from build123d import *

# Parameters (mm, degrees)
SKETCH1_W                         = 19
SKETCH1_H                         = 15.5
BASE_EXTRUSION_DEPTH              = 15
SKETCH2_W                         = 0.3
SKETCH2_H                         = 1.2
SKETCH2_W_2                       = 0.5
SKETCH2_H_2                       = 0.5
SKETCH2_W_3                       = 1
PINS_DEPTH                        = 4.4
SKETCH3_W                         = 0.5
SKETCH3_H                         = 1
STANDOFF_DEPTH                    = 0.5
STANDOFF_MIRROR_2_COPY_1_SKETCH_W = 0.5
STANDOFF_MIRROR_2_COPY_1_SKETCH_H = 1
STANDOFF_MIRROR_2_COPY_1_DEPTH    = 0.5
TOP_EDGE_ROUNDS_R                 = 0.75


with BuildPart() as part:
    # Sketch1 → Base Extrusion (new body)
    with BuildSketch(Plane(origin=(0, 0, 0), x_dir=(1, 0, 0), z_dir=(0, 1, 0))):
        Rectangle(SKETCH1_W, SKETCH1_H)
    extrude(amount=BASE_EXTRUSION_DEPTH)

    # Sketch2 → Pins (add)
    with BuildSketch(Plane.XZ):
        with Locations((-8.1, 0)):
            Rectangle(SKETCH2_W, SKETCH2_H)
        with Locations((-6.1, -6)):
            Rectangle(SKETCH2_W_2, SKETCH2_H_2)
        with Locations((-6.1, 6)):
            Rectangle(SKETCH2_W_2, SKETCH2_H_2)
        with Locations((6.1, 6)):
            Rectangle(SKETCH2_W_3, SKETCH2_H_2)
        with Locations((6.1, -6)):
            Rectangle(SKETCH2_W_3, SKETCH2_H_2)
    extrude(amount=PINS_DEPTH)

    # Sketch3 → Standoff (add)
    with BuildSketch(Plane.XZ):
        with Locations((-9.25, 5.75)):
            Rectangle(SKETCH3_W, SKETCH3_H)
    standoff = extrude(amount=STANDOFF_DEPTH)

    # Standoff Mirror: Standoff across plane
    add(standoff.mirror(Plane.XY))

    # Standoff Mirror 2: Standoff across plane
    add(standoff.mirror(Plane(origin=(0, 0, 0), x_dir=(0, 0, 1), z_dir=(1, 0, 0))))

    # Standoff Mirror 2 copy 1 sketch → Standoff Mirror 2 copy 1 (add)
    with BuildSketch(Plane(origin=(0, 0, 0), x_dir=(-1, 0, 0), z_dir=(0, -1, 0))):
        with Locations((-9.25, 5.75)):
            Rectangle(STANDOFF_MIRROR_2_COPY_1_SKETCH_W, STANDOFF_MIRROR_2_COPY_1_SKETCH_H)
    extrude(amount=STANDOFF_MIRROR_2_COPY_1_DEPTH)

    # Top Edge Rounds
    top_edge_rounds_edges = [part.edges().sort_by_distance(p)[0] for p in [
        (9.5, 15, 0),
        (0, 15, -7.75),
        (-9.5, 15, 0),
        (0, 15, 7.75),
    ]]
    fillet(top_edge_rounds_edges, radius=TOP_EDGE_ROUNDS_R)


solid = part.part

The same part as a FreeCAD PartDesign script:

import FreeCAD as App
import Part
import Sketcher
from FreeCAD import Vector


def edges_at(feature, points):
    """Names of the edges that pass closest to the given points."""
    edges = feature.Shape.Edges
    near = lambda p: min(range(len(edges)), key=lambda i: edges[i].distToShape(Part.Vertex(*p))[0])
    return sorted({f"Edge{near(p) + 1}" for p in points})


def add_polygon(sketch, points):
    """Adds a closed chain of lines whose ends are joined by coincident constraints."""
    first, n = sketch.GeometryCount, len(points)
    for a, b in zip(points, points[1:] + points[:1]):
        sketch.addGeometry(Part.LineSegment(App.Vector(*a, 0), App.Vector(*b, 0)), False)
    for i in range(n):
        sketch.addConstraint(Sketcher.Constraint("Coincident", first + i, 2, first + (i + 1) % n, 1))

doc = App.newDocument("Part")
body = doc.addObject("PartDesign::Body", "Body")

sketch1 = body.newObject("Sketcher::SketchObject", "Sketch")
sketch1.AttachmentSupport = (doc.getObject("XZ_Plane"), [""])
sketch1.MapMode = "FlatFace"
add_polygon(sketch1, [(-9.5, -7.75), (-9.5, 7.75), (9.5, 7.75), (9.5, -7.75)])
sketch1.addConstraint(Sketcher.Constraint("Vertical", 0))
sketch1.addConstraint(Sketcher.Constraint("Horizontal", 1))
sketch1.addConstraint(Sketcher.Constraint("Vertical", 2))
sketch1.addConstraint(Sketcher.Constraint("Horizontal", 3))
sketch1.addConstraint(Sketcher.Constraint("Symmetric", 0, 2, 2, 2, -1, 1))
sketch1.addConstraint(Sketcher.Constraint("DistanceX", 1, 1, 1, 2, 19.0))
sketch1.addConstraint(Sketcher.Constraint("DistanceY", 0, 1, 0, 2, 15.5))
pad1 = body.newObject("PartDesign::Pad", "Pad")
pad1.Profile = sketch1
pad1.Length = 15
pad1.Reversed = True

sketch2 = body.newObject("Sketcher::SketchObject", "Sketch001")
sketch2.AttachmentSupport = (doc.getObject("XZ_Plane"), [""])
sketch2.MapMode = "FlatFace"
add_polygon(sketch2, [(-8.25, 0.6), (-8.25, -0.6), (-7.95, -0.6), (-7.95, 0.6)])
add_polygon(sketch2, [(-6.35, -5.75), (-6.35, -6.25), (-5.85, -6.25), (-5.85, -5.75)])
add_polygon(sketch2, [(-6.35, 6.25), (-6.35, 5.75), (-5.85, 5.75), (-5.85, 6.25)])
add_polygon(sketch2, [(5.6, 6.25), (5.6, 5.75), (6.6, 5.75), (6.6, 6.25)])
add_polygon(sketch2, [(5.6, -5.75), (5.6, -6.25), (6.6, -6.25), (6.6, -5.75)])
sketch2.addConstraint(Sketcher.Constraint("Vertical", 0))
sketch2.addConstraint(Sketcher.Constraint("Horizontal", 1))
sketch2.addConstraint(Sketcher.Constraint("Vertical", 2))
sketch2.addConstraint(Sketcher.Constraint("Horizontal", 3))
sketch2.addConstraint(Sketcher.Constraint("Vertical", 4))
sketch2.addConstraint(Sketcher.Constraint("Horizontal", 5))
sketch2.addConstraint(Sketcher.Constraint("Vertical", 6))
sketch2.addConstraint(Sketcher.Constraint("Horizontal", 7))
sketch2.addConstraint(Sketcher.Constraint("Vertical", 8))
sketch2.addConstraint(Sketcher.Constraint("Horizontal", 9))
sketch2.addConstraint(Sketcher.Constraint("Vertical", 10))
sketch2.addConstraint(Sketcher.Constraint("Horizontal", 11))
sketch2.addConstraint(Sketcher.Constraint("Vertical", 12))
sketch2.addConstraint(Sketcher.Constraint("Horizontal", 13))
sketch2.addConstraint(Sketcher.Constraint("Vertical", 14))
sketch2.addConstraint(Sketcher.Constraint("Horizontal", 15))
sketch2.addConstraint(Sketcher.Constraint("Vertical", 16))
sketch2.addConstraint(Sketcher.Constraint("Horizontal", 17))
sketch2.addConstraint(Sketcher.Constraint("Vertical", 18))
sketch2.addConstraint(Sketcher.Constraint("Horizontal", 19))
sketch2.addConstraint(Sketcher.Constraint("Symmetric", 7, 2, 8, 2, -1))
sketch2.addConstraint(Sketcher.Constraint("Symmetric", 5, 2, 10, 2, -1))
sketch2.addConstraint(Sketcher.Constraint("Symmetric", 15, 2, 16, 2, -1))
sketch2.addConstraint(Sketcher.Constraint("Symmetric", 13, 2, 18, 2, -1))
sketch2.addConstraint(Sketcher.Constraint("Horizontal", 9, 2, 12, 2))
sketch2.addConstraint(Sketcher.Constraint("Horizontal", 11, 2, 14, 2))
sketch2.addConstraint(Sketcher.Constraint("Equal", 11, 4))
sketch2.addConstraint(Sketcher.Constraint("DistanceX", 13, 1, 13, 2, 1.0))
sketch2.addConstraint(Sketcher.Constraint("DistanceX", 1, 1, 1, 2, 0.3))
sketch2.addConstraint(Sketcher.Constraint("DistanceX", 5, 1, 5, 2, 0.5))
sketch2.addConstraint(Sketcher.Constraint("DistanceY", 0, 2, 0, 1, 1.2))
sketch2.addConstraint(Sketcher.Constraint("DistanceY", 16, 2, 12, 2, 12.0))
sketch2.addConstraint(Sketcher.Constraint("DistanceY", 0, 2, -1, 1, 0.6))
sketch2.addConstraint(Sketcher.Constraint("DistanceX", -1, 1, 12, 2, 5.6))
sketch2.addConstraint(Sketcher.Constraint("DistanceX", 1, 2, 4, 2, 1.6))
sketch2.addConstraint(Sketcher.Constraint("DistanceX", 0, 2, -1, 1, 8.25))
pad2 = body.newObject("PartDesign::Pad", "Pad001")
pad2.Profile = sketch2
pad2.Length = 4.4

sketch3 = body.newObject("Sketcher::SketchObject", "Sketch002")
sketch3.AttachmentSupport = (doc.getObject("XZ_Plane"), [""])
sketch3.MapMode = "FlatFace"
add_polygon(sketch3, [(-9.5, 6.25), (-9.5, 5.25), (-9, 5.25), (-9, 6.25)])
sketch3.addConstraint(Sketcher.Constraint("Vertical", 0))
sketch3.addConstraint(Sketcher.Constraint("Horizontal", 1))
sketch3.addConstraint(Sketcher.Constraint("Vertical", 2))
sketch3.addConstraint(Sketcher.Constraint("Horizontal", 3))
sketch3.addConstraint(Sketcher.Constraint("DistanceY", 0, 2, 0, 1, 1.0))
sketch3.addConstraint(Sketcher.Constraint("DistanceX", 1, 1, 1, 2, 0.5))
sketch3.addConstraint(Sketcher.Constraint("DistanceX", 1, 2, -1, 1, 9.0))
sketch3.addConstraint(Sketcher.Constraint("DistanceY", -1, 1, 0, 2, 5.25))
pad3 = body.newObject("PartDesign::Pad", "Pad002")
pad3.Profile = sketch3
pad3.Length = 0.5
doc.recompute()

mirrored = body.newObject("PartDesign::Mirrored", "Mirrored")
mirrored.Originals = [pad3]
mirrored.MirrorPlane = (doc.getObject("XY_Plane"), [""])
body.Tip = mirrored
doc.recompute()

mirrored2 = body.newObject("PartDesign::Mirrored", "Mirrored001")
mirrored2.Originals = [pad3]
mirrored2.MirrorPlane = (doc.getObject("YZ_Plane"), [""])
body.Tip = mirrored2

sketch4 = body.newObject("Sketcher::SketchObject", "Sketch003")
sketch4.AttachmentSupport = (doc.getObject("XZ_Plane"), [""])
sketch4.MapMode = "FlatFace"
add_polygon(sketch4, [(9.5, -6.25), (9.5, -5.25), (9, -5.25), (9, -6.25)])
sketch4.addConstraint(Sketcher.Constraint("Vertical", 0))
sketch4.addConstraint(Sketcher.Constraint("Horizontal", 1))
sketch4.addConstraint(Sketcher.Constraint("Vertical", 2))
sketch4.addConstraint(Sketcher.Constraint("Horizontal", 3))
sketch4.addConstraint(Sketcher.Constraint("DistanceY", 0, 1, 0, 2, 1.0))
sketch4.addConstraint(Sketcher.Constraint("DistanceX", 1, 2, 1, 1, 0.5))
sketch4.addConstraint(Sketcher.Constraint("DistanceX", -1, 1, 1, 2, 9.0))
sketch4.addConstraint(Sketcher.Constraint("DistanceY", 0, 2, -1, 1, 5.25))
pad4 = body.newObject("PartDesign::Pad", "Pad003")
pad4.Profile = sketch4
pad4.Length = 0.5
doc.recompute()

fillet = body.newObject("PartDesign::Fillet", "Fillet")
fillet.Base = (pad4, edges_at(pad4, [
    (9.5, 15, 0),
    (0, 15, -7.75),
    (-9.5, 15, 0),
    (0, 15, 7.75),
]))
fillet.Radius = 0.75

doc.recompute()
